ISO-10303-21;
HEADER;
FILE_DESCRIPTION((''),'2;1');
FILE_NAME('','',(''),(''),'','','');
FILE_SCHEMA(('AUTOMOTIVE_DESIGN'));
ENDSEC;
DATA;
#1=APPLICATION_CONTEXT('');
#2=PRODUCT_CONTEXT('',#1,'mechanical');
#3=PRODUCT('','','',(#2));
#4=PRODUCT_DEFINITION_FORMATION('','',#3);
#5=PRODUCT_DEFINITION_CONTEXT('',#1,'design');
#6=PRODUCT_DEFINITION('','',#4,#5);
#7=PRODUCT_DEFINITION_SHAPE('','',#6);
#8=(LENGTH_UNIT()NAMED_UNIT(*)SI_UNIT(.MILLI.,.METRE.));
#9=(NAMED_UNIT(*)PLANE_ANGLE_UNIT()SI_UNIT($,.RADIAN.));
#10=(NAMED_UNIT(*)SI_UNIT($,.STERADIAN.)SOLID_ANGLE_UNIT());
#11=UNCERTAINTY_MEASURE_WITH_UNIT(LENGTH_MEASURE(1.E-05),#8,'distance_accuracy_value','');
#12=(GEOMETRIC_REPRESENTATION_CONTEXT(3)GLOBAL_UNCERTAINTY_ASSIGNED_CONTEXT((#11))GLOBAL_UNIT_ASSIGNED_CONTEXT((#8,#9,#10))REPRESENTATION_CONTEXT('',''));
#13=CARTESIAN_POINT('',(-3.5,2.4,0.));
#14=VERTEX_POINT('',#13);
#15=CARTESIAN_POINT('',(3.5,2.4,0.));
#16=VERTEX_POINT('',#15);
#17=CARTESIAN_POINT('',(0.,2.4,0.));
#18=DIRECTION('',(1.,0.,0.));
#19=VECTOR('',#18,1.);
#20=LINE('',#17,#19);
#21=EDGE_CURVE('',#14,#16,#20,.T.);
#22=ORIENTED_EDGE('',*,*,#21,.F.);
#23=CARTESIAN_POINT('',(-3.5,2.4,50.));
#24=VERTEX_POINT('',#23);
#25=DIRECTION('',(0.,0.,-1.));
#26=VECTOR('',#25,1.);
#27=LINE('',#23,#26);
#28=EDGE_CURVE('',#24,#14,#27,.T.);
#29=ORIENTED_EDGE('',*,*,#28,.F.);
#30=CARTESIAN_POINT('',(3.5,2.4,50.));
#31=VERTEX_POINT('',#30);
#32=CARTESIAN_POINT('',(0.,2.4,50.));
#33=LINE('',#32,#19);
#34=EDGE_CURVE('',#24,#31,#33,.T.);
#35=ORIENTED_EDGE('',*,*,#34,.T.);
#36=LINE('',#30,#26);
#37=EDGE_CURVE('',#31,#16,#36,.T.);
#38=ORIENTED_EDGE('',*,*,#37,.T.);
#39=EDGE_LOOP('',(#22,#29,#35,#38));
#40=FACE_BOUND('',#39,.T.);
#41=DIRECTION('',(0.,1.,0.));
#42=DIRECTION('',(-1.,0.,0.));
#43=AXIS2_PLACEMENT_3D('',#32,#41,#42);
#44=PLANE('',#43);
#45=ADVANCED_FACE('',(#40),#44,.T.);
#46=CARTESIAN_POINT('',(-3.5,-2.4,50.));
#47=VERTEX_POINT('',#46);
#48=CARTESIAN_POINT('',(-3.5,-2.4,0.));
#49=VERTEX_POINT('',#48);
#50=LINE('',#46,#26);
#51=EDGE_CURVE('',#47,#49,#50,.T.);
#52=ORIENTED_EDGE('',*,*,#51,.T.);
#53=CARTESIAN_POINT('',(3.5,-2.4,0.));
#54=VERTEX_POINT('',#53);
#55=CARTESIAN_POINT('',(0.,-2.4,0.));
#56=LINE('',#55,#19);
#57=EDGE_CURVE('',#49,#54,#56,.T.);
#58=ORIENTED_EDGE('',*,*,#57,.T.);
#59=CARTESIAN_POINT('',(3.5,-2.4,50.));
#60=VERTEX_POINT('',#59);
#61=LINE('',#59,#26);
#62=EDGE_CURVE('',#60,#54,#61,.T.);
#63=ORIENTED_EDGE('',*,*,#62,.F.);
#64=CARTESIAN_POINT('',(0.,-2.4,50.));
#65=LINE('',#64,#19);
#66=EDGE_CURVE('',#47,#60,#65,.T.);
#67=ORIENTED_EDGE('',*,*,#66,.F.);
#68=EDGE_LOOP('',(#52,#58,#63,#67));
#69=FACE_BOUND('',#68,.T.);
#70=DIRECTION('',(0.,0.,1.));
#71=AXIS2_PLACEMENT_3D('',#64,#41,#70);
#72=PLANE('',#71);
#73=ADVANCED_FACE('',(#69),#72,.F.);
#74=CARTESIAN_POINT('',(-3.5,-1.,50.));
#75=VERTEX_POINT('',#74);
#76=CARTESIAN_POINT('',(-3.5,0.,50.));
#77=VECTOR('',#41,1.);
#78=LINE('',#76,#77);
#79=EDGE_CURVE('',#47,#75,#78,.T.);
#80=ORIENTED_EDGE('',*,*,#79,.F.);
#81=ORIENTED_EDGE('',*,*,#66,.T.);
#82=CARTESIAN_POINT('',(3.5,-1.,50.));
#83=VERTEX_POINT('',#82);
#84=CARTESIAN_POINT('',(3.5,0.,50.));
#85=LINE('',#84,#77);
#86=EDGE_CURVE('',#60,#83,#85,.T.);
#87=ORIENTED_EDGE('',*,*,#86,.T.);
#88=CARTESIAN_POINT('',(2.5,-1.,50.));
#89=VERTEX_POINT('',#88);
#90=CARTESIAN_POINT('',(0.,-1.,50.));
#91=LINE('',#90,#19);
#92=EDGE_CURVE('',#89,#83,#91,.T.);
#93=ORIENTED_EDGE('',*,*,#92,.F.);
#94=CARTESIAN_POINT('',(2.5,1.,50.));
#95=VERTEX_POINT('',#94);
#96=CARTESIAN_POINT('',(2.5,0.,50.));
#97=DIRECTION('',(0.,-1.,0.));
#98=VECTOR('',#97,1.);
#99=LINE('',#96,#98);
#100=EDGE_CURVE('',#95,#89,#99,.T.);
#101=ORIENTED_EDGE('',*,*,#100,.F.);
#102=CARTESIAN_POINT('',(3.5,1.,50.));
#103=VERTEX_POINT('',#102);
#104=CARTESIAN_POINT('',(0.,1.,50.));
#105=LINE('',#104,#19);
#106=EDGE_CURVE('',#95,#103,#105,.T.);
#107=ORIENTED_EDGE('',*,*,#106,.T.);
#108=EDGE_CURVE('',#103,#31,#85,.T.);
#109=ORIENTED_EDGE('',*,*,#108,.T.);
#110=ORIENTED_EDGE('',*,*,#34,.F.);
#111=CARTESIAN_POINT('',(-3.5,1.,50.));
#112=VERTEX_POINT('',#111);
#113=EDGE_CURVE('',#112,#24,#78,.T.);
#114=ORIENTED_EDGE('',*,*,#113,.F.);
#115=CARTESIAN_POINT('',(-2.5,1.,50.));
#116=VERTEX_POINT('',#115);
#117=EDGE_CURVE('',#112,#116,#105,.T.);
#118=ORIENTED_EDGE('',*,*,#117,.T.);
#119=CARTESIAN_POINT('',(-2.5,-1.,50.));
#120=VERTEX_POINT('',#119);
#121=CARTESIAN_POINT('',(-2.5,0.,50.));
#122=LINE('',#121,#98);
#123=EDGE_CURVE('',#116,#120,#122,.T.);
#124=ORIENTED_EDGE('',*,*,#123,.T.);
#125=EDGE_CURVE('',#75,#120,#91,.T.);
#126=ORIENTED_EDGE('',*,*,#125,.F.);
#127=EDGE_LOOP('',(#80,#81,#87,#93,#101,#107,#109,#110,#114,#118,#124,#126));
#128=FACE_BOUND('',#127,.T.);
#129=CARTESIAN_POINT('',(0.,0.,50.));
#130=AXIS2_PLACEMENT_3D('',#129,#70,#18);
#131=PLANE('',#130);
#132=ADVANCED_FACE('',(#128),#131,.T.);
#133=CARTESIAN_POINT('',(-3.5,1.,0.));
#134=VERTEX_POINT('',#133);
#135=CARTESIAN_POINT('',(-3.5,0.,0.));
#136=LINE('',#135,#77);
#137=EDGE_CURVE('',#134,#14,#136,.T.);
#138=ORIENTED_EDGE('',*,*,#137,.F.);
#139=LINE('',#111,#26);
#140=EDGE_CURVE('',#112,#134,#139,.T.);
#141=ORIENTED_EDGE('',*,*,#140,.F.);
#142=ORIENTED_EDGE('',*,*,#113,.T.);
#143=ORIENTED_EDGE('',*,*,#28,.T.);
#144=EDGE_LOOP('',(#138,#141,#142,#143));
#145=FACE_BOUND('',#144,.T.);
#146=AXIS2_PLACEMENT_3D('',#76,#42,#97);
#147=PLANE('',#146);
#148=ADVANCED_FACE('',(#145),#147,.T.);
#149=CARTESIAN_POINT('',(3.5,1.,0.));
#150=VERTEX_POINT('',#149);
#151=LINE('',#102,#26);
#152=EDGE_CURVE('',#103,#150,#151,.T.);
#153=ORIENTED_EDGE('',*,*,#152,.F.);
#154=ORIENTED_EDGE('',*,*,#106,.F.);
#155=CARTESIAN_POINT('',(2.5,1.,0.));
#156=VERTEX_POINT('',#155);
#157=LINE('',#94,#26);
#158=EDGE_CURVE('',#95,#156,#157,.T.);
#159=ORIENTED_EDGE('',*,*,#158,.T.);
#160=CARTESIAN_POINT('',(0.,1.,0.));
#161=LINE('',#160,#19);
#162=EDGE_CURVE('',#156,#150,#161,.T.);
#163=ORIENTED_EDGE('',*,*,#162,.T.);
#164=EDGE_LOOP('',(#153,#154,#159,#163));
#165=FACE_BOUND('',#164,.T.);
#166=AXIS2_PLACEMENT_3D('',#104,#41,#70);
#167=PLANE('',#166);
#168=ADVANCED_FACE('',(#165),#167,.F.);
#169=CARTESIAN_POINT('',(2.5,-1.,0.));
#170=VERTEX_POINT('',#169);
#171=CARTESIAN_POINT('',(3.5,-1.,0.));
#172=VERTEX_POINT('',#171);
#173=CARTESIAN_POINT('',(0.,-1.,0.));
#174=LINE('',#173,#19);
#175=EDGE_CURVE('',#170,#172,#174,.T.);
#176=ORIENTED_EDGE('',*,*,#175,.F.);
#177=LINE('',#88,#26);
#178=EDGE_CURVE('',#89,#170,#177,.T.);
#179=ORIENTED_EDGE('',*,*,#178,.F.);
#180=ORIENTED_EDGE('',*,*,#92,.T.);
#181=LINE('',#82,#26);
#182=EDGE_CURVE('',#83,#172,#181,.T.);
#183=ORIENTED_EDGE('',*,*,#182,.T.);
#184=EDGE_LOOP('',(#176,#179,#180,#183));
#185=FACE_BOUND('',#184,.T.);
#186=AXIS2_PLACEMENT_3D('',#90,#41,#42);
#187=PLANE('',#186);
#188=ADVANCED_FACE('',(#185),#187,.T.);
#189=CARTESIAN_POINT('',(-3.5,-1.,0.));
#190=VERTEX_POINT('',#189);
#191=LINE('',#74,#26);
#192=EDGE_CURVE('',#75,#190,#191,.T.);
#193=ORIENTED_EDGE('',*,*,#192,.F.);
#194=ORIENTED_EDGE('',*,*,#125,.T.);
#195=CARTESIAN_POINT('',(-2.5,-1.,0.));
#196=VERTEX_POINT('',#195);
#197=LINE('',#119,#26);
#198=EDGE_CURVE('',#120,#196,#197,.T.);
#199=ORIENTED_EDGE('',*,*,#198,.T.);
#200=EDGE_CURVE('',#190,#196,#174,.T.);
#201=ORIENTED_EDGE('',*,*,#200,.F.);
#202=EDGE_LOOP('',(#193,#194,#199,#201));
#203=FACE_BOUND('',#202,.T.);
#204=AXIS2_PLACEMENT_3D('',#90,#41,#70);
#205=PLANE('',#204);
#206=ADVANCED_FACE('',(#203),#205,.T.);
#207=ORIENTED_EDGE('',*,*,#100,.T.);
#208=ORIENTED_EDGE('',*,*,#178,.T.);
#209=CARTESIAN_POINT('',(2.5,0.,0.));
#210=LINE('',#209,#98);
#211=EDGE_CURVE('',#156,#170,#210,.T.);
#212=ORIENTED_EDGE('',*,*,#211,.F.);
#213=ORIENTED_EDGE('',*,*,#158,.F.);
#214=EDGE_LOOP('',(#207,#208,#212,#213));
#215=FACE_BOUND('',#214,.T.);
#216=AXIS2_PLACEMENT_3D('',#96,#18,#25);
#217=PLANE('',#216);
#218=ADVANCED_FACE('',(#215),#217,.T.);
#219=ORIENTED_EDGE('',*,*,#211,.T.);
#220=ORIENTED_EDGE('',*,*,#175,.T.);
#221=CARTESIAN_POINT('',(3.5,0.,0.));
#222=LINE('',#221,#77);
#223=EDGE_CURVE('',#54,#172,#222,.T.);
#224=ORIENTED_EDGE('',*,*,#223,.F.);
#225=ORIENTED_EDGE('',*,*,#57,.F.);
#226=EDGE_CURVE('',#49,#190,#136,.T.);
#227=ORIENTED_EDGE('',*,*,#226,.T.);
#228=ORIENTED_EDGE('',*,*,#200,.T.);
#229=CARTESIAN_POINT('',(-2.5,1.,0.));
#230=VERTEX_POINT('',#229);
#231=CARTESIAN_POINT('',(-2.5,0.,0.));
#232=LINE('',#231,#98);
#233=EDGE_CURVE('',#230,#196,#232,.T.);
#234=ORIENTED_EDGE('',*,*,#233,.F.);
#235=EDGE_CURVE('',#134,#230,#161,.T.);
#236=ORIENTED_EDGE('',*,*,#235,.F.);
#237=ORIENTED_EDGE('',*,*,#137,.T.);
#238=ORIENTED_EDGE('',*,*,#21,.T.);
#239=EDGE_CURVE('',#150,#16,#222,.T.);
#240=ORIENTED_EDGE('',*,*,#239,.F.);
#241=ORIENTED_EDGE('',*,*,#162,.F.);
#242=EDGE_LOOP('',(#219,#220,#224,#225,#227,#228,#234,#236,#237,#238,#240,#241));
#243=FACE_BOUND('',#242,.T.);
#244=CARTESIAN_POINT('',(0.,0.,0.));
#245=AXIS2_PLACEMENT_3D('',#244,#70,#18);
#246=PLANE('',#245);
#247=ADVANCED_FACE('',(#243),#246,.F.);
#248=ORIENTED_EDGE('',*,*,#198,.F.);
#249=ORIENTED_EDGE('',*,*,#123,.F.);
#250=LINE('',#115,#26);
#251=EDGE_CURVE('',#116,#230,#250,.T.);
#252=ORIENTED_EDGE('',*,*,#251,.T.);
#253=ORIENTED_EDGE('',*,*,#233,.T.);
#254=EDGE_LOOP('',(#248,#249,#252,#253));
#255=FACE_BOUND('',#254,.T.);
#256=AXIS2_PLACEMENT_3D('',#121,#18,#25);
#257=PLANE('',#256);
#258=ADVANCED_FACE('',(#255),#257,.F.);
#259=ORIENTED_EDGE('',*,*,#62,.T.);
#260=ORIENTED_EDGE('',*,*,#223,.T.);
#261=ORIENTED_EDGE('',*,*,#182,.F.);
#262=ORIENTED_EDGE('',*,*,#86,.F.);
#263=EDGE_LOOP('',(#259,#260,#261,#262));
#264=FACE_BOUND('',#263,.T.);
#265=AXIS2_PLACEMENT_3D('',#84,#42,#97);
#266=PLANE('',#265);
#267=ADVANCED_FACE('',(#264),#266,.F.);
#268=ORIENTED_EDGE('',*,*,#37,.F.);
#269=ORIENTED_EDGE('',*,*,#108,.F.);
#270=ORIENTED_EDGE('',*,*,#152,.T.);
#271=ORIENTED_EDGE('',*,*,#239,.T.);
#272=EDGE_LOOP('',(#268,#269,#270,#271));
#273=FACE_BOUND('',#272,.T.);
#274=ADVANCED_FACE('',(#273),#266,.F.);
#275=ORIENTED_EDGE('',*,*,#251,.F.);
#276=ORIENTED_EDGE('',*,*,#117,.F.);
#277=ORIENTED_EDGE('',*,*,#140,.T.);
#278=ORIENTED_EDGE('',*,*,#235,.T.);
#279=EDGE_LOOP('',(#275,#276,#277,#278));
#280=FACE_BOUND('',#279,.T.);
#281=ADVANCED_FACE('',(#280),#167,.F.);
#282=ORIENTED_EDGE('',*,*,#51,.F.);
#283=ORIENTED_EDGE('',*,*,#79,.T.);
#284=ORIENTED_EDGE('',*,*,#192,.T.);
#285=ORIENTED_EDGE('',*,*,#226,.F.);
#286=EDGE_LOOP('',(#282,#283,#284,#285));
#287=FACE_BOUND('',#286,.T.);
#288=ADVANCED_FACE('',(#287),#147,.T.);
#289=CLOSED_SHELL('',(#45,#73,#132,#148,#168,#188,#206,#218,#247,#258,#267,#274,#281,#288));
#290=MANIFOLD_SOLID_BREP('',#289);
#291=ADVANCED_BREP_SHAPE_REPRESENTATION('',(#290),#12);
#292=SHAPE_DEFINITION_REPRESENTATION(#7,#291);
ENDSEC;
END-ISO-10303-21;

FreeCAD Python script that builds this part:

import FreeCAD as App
import Part
import Sketcher

V = App.Vector


def add_polygon(sketch, points):
    """Adds a closed chain of lines whose ends are joined by coincident constraints."""
    first, n = sketch.GeometryCount, len(points)
    for a, b in zip(points, points[1:] + points[:1]):
        sketch.addGeometry(Part.LineSegment(App.Vector(*a, 0), App.Vector(*b, 0)), False)
    for i in range(n):
        sketch.addConstraint(Sketcher.Constraint("Coincident", first + i, 2, first + (i + 1) % n, 1))

doc = App.newDocument("Part")
params = doc.addObject("Spreadsheet::Sheet", "Params")
for row, (alias, value) in enumerate([
    ("sketch1_width", "7 mm"),
    ("sketch1_width2", "1 mm"),
    ("sketch1_height", "2 mm"),
    ("sketch1_height2", "1.4 mm"),
    ("pad1_length", "50 mm"),
], start=1):
    params.set(f"A{row}", alias)
    params.set(f"B{row}", "=" + value)
    params.setAlias(f"B{row}", alias)

body = doc.addObject("PartDesign::Body", "Body")

sketch1 = body.newObject("Sketcher::SketchObject", "Sketch")
sketch1.AttachmentSupport = (doc.getObject("XY_Plane"), [""])
sketch1.MapMode = "FlatFace"
add_polygon(sketch1, [(-3.5, -1), (-3.5, -2.4), (3.5, -2.4), (3.5, -1), (2.5, -1), (2.5, 1), (3.5, 1), (3.5, 2.4), (-3.5, 2.4), (-3.5, 1), (-2.5, 1), (-2.5, -1)])
sketch1.addConstraint(Sketcher.Constraint("Vertical", 0))
sketch1.addConstraint(Sketcher.Constraint("Horizontal", 1))
sketch1.addConstraint(Sketcher.Constraint("Vertical", 2))
sketch1.addConstraint(Sketcher.Constraint("Horizontal", 3))
sketch1.addConstraint(Sketcher.Constraint("Vertical", 4))
sketch1.addConstraint(Sketcher.Constraint("Horizontal", 5))
sketch1.addConstraint(Sketcher.Constraint("Vertical", 6))
sketch1.addConstraint(Sketcher.Constraint("Horizontal", 7))
sketch1.addConstraint(Sketcher.Constraint("Vertical", 8))
sketch1.addConstraint(Sketcher.Constraint("Horizontal", 9))
sketch1.addConstraint(Sketcher.Constraint("Vertical", 10))
sketch1.addConstraint(Sketcher.Constraint("Horizontal", 11))
sketch1.addConstraint(Sketcher.Constraint("Symmetric", 0, 2, 6, 2, -1, 1))
sketch1.addConstraint(Sketcher.Constraint("Symmetric", 2, 2, 8, 2, -1, 1))
sketch1.addConstraint(Sketcher.Constraint("Symmetric", 4, 2, 10, 2, -1, 1))
sketch1.addConstraint(Sketcher.Constraint("Symmetric", 5, 2, 8, 2, -2))
sketch1.addConstraint(Sketcher.Constraint("DistanceX", 1, 1, 1, 2, 7.0))
sketch1.addConstraint(Sketcher.Constraint("DistanceX", 3, 2, 3, 1, 1.0))
sketch1.addConstraint(Sketcher.Constraint("DistanceY", 4, 1, 4, 2, 2.0))
sketch1.addConstraint(Sketcher.Constraint("DistanceY", 0, 2, 0, 1, 1.4))
sketch1.setExpression("Constraints[28]", "Params.sketch1_width")
sketch1.setExpression("Constraints[29]", "Params.sketch1_width2")
sketch1.setExpression("Constraints[30]", "Params.sketch1_height")
sketch1.setExpression("Constraints[31]", "Params.sketch1_height2")
pad1 = body.newObject("PartDesign::Pad", "Pad")
pad1.Profile = sketch1
pad1.setExpression("Length", "Params.pad1_length")

doc.recompute()
